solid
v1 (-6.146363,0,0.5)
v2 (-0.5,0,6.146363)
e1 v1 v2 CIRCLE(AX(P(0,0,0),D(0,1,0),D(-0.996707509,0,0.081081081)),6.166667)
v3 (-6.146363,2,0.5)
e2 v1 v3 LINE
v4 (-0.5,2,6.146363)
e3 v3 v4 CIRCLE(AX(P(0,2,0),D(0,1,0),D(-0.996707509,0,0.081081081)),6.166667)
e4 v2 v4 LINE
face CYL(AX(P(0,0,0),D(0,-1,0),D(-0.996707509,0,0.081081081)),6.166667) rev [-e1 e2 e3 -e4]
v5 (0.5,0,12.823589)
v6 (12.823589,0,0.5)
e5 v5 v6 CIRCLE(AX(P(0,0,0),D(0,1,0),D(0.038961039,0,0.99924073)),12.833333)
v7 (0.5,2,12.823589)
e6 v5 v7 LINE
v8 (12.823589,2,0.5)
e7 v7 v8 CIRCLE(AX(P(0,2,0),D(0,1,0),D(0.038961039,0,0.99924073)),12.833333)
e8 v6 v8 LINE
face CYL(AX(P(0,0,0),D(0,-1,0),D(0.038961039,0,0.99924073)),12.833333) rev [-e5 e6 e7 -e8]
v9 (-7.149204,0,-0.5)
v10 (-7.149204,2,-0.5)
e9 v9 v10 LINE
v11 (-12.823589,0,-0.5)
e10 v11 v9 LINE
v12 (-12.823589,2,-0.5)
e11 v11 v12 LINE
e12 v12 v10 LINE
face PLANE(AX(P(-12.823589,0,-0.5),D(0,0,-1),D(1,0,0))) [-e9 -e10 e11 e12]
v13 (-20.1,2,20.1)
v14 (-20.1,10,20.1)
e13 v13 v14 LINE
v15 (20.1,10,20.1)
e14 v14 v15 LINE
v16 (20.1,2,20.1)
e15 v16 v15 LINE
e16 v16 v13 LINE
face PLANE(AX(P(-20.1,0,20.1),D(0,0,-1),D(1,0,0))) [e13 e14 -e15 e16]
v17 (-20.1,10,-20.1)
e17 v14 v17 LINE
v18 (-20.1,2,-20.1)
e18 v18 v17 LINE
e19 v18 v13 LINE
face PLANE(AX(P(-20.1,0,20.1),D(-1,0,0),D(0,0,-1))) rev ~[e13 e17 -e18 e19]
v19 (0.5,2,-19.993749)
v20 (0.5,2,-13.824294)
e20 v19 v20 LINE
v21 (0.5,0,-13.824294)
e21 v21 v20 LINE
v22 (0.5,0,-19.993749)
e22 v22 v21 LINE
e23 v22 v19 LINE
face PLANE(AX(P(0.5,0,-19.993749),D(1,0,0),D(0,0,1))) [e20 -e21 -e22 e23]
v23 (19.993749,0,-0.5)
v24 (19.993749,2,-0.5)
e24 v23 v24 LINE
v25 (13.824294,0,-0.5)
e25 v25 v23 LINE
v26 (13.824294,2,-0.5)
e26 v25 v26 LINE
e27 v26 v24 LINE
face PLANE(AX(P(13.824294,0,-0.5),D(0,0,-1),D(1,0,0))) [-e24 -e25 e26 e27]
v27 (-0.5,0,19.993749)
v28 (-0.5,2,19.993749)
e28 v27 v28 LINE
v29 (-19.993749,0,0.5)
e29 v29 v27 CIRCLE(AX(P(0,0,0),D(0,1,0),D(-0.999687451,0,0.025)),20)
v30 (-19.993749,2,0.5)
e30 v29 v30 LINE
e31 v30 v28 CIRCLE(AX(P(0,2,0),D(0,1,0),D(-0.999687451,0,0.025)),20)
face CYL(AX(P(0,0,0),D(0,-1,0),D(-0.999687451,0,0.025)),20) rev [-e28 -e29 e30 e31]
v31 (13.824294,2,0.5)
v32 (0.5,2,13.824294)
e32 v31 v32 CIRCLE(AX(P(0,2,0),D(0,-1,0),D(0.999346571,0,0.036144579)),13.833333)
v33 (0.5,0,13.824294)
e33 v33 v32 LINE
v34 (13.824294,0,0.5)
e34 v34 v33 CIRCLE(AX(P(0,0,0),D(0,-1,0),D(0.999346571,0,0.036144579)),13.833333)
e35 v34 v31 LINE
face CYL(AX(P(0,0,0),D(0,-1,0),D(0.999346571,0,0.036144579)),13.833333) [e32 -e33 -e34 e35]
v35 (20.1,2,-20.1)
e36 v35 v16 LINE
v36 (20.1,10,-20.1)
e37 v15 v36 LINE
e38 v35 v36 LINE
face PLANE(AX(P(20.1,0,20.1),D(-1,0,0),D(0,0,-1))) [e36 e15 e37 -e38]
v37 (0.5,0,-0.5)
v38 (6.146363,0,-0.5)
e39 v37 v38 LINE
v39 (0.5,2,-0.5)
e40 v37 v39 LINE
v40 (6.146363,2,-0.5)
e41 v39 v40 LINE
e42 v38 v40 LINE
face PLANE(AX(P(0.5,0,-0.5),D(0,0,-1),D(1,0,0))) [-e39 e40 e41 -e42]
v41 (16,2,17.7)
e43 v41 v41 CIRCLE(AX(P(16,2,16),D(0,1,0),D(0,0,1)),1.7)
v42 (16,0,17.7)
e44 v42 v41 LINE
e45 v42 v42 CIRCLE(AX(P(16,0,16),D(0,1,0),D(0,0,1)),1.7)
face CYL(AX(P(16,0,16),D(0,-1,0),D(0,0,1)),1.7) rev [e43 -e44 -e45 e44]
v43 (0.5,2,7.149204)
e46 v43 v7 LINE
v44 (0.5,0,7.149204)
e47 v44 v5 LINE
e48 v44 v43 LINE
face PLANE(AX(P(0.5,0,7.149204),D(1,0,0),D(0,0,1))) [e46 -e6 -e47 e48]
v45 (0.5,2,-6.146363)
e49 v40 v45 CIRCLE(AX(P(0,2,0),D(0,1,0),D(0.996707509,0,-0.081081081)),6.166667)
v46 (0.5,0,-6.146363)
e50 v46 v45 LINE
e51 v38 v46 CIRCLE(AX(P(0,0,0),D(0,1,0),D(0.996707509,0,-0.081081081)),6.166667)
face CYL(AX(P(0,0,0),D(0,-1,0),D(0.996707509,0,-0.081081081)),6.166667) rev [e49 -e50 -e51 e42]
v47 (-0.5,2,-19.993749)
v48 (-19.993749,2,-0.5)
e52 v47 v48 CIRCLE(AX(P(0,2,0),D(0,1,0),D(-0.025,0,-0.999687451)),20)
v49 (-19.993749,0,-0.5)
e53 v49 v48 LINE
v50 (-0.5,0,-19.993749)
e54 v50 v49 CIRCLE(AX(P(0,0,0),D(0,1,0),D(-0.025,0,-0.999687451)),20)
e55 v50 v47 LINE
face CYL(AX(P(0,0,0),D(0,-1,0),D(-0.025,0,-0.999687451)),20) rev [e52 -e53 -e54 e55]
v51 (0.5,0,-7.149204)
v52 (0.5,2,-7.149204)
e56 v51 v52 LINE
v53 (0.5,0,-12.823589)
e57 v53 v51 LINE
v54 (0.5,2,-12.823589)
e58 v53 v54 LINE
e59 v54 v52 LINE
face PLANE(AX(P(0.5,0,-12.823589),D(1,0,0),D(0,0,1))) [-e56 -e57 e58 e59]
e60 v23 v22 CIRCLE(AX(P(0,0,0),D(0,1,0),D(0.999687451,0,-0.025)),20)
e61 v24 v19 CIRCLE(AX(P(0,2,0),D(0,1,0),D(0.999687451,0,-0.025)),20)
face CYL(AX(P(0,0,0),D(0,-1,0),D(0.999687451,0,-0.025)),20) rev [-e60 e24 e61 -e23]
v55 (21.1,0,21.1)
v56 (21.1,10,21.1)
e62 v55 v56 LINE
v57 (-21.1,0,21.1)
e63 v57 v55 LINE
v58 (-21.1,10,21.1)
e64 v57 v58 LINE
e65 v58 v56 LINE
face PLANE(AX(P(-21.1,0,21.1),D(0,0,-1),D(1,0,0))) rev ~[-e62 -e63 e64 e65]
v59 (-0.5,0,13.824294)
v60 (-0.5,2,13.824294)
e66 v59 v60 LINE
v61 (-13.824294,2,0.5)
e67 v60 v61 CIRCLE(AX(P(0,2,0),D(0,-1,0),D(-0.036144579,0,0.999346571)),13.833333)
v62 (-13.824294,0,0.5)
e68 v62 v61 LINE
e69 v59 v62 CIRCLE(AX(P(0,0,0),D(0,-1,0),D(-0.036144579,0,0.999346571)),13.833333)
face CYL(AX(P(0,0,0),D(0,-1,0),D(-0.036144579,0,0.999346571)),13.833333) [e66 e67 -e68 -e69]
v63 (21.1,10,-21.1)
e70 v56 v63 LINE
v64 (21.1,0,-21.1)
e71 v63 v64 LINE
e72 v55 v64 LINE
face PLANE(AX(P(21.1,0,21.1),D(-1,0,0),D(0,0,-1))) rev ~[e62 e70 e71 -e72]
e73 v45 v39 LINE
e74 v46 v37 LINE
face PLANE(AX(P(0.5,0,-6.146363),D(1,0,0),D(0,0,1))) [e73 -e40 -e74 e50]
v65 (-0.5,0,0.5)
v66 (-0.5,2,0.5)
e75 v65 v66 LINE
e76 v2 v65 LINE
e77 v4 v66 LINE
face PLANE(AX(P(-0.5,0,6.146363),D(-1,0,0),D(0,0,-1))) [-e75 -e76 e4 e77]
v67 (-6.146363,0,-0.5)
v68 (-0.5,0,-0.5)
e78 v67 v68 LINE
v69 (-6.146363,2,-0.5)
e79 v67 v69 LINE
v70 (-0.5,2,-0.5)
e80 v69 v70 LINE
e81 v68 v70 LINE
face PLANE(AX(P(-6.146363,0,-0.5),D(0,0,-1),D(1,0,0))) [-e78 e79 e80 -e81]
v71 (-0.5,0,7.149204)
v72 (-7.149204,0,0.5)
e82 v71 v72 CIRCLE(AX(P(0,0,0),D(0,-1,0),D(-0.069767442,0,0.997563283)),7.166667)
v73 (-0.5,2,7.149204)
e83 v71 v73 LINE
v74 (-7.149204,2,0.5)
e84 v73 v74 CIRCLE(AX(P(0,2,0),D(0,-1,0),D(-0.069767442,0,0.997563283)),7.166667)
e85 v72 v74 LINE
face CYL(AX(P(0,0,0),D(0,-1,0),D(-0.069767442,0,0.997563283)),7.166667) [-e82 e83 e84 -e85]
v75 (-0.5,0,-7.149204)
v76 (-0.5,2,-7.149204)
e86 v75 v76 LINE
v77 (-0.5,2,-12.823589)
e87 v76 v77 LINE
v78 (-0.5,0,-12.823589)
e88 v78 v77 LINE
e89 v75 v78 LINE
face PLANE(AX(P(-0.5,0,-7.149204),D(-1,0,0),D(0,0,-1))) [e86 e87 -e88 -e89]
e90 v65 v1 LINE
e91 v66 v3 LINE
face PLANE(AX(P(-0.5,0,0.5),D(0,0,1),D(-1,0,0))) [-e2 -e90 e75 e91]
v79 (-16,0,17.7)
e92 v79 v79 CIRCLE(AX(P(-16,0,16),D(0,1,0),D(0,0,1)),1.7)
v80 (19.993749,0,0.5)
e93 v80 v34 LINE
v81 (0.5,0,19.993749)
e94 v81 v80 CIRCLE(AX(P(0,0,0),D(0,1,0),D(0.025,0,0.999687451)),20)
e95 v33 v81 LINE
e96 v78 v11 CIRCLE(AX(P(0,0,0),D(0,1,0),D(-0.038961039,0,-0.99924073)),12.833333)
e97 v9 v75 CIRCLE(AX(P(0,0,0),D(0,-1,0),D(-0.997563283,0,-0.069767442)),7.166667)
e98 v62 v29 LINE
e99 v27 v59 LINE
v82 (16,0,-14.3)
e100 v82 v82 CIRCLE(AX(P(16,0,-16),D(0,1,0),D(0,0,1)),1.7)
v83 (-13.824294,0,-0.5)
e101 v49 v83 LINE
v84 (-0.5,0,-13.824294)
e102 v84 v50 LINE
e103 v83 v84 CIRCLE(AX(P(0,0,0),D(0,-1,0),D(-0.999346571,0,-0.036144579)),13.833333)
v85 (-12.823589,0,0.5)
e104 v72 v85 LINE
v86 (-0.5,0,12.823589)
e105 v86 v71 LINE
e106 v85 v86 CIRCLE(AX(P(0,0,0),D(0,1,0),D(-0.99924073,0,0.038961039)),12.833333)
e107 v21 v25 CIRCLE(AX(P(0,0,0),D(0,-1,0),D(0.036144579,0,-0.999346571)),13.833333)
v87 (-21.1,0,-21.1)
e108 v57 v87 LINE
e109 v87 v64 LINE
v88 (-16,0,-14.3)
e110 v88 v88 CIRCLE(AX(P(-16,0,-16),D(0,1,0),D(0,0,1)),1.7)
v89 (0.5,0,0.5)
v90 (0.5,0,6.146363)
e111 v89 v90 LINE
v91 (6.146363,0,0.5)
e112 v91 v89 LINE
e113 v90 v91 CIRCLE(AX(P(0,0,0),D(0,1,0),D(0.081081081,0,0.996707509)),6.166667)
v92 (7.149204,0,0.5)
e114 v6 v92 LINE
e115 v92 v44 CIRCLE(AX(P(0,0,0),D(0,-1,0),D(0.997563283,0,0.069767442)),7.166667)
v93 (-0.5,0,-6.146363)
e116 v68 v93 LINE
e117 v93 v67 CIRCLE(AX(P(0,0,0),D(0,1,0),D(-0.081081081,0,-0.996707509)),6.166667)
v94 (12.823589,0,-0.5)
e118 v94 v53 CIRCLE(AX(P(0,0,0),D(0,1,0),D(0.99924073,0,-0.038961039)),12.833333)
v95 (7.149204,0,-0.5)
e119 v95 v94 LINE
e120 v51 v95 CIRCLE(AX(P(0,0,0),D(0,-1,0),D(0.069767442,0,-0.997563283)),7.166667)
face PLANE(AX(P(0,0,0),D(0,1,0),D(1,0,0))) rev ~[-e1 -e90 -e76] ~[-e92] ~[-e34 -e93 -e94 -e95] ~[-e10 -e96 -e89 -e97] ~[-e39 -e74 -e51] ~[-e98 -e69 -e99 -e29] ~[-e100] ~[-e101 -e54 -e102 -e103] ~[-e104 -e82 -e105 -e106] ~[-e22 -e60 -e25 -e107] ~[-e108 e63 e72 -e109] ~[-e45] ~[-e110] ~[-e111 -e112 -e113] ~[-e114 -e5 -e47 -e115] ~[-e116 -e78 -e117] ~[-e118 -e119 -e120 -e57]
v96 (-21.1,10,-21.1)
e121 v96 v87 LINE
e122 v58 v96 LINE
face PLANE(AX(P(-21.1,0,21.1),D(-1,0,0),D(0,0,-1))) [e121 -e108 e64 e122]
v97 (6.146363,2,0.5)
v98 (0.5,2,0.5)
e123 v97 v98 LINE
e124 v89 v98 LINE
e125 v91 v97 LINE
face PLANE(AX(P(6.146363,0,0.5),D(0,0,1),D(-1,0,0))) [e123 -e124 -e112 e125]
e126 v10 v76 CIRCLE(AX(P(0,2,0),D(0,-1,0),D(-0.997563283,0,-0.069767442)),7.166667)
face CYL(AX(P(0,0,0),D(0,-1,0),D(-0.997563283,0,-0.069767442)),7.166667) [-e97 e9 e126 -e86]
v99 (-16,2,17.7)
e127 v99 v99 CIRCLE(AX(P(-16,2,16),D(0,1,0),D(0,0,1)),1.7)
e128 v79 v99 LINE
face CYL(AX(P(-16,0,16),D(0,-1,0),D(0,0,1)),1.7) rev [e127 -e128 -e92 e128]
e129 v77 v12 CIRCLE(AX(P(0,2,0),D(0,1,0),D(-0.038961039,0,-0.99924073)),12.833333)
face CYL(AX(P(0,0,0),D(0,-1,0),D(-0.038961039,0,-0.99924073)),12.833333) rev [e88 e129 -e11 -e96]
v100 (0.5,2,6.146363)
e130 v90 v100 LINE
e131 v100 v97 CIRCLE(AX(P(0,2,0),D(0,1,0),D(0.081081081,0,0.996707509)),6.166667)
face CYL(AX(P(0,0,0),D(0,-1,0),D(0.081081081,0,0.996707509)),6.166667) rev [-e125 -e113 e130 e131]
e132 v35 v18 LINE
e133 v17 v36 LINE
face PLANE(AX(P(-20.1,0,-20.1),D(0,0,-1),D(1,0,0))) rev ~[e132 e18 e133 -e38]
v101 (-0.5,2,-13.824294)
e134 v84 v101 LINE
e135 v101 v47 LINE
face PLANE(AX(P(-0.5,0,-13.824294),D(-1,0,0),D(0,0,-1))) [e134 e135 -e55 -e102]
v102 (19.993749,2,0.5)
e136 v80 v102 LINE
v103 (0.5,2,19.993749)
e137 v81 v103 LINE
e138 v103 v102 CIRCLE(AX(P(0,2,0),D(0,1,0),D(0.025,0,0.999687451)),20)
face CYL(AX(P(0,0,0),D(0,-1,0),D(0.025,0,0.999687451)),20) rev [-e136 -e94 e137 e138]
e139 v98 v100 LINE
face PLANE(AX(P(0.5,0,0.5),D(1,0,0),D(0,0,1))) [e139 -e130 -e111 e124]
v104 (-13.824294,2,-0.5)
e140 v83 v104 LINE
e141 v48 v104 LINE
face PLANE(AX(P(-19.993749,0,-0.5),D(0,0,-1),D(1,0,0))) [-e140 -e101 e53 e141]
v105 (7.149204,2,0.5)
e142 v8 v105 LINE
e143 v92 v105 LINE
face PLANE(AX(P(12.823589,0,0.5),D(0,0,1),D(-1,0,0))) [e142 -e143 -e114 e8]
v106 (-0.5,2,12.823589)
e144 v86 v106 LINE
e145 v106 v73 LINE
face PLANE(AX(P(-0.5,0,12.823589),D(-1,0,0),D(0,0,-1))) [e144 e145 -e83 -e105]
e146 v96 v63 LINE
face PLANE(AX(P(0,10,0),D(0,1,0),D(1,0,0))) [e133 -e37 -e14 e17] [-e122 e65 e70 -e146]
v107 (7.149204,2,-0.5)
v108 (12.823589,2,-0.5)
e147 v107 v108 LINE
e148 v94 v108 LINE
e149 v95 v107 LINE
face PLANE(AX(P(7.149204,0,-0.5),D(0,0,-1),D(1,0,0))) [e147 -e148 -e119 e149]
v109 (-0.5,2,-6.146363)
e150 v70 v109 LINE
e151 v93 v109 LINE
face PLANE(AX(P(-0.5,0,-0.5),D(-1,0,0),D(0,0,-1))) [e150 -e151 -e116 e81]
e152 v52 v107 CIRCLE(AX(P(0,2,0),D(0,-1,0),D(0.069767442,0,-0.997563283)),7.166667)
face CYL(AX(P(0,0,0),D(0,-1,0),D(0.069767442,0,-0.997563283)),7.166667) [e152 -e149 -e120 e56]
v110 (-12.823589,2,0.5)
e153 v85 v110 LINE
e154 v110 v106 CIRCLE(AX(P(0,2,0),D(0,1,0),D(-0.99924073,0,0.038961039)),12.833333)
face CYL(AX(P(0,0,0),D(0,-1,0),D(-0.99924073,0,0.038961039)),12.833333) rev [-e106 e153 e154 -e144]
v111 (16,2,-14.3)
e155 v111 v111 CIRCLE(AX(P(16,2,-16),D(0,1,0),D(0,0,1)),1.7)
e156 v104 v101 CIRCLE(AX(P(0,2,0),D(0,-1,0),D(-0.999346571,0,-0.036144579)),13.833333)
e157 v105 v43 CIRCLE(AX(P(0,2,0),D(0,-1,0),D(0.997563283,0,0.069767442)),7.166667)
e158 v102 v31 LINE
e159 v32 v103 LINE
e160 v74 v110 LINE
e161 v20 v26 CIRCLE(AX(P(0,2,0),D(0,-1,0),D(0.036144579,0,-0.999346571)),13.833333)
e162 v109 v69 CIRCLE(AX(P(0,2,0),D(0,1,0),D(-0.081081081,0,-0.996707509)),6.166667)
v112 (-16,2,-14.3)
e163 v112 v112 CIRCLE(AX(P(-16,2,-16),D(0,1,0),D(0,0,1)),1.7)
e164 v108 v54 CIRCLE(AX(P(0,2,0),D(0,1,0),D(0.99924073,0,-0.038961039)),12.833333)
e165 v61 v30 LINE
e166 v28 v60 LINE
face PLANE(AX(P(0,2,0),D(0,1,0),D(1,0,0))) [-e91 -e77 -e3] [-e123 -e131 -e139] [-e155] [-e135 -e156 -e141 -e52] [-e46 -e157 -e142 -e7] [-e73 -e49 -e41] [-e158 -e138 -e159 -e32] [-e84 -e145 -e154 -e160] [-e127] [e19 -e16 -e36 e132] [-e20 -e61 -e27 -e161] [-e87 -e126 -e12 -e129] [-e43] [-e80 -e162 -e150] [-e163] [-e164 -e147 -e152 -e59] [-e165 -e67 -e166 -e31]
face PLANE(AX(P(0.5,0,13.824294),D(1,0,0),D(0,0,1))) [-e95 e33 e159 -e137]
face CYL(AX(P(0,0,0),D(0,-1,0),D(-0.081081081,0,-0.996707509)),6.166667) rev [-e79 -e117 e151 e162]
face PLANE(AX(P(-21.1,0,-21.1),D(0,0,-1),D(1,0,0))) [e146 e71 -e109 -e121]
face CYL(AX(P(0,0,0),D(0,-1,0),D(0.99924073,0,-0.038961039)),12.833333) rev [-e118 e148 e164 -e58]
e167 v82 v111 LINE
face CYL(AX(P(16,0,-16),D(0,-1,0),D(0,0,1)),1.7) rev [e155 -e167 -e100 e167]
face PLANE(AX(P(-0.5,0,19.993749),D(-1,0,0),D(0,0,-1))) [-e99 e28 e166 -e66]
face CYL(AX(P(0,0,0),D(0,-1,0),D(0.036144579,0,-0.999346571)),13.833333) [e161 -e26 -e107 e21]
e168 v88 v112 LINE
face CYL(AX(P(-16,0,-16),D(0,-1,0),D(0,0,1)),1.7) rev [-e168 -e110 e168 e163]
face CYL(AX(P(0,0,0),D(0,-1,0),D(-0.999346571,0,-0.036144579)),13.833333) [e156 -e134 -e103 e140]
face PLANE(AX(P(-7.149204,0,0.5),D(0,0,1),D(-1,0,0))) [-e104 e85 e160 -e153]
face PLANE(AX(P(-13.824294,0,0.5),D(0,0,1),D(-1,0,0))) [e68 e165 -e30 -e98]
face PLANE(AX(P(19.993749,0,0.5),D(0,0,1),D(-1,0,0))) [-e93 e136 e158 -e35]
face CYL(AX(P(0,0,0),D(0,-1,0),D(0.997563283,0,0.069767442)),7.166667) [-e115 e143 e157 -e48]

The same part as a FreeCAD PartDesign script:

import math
import FreeCAD as App
import Part
import Sketcher

V = App.Vector
Q = App.Units.Quantity


def add_polygon(sketch, points):
    """Adds a closed chain of lines whose ends are joined by coincident constraints."""
    first, n = sketch.GeometryCount, len(points)
    for a, b in zip(points, points[1:] + points[:1]):
        sketch.addGeometry(Part.LineSegment(App.Vector(*a, 0), App.Vector(*b, 0)), False)
    for i in range(n):
        sketch.addConstraint(Sketcher.Constraint("Coincident", first + i, 2, first + (i + 1) % n, 1))

doc = App.newDocument("Part")
params = doc.addObject("Spreadsheet::Sheet", "Params")
for row, (alias, value) in enumerate([
    ("sketch1_diameter", "3.4 mm"),
    ("sketch1_width", "42.2 mm"),
    ("pad1_length", "2 mm"),
    ("sketch2_width", "42.2 mm"),
    ("sketch2_width2", "40.2 mm"),
    ("pad2_length", "10 mm"),
    ("sketch3_radius", "20 mm"),
    ("pocket1_length", "2 mm"),
], start=1):
    params.set(f"A{row}", alias)
    params.set(f"B{row}", "=" + value)
    params.setAlias(f"B{row}", alias)

body = doc.addObject("PartDesign::Body", "Body")

# Sketch on XZ plane
sketch1 = body.newObject("Sketcher::SketchObject", "Sketch")
sketch1.AttachmentSupport = (doc.getObject("XZ_Plane"), [""])
sketch1.MapMode = "FlatFace"
add_polygon(sketch1, [(-21.1, -21.1), (-21.1, 21.1), (21.1, 21.1), (21.1, -21.1)])  # lines 0-3
sketch1.addGeometry(Part.Circle(V(-16, 16, 0), V(0, 0, 1), 1.7), False)  # 4
sketch1.addGeometry(Part.Circle(V(16, 16, 0), V(0, 0, 1), 1.7), False)  # 5
sketch1.addGeometry(Part.Circle(V(-16, -16, 0), V(0, 0, 1), 1.7), False)  # 6
sketch1.addGeometry(Part.Circle(V(16, -16, 0), V(0, 0, 1), 1.7), False)  # 7
sketch1.addConstraint([
    Sketcher.Constraint("Vertical", 0),
    Sketcher.Constraint("Horizontal", 1),
    Sketcher.Constraint("Vertical", 2),
    Sketcher.Constraint("Horizontal", 3),
    Sketcher.Constraint("Equal", 4, 5),
    Sketcher.Constraint("Equal", 5, 6),
    Sketcher.Constraint("Equal", 6, 7),
    Sketcher.Constraint("Symmetric", 5, 3, 6, 3, -1, 1),
    Sketcher.Constraint("Symmetric", 4, 3, 7, 3, -1, 1),
    Sketcher.Constraint("Symmetric", 0, 2, 2, 2, -1, 1),
    Sketcher.Constraint("Symmetric", 4, 3, 5, 3, -2),
    Sketcher.Constraint("Equal", 3, 0),
    Sketcher.Constraint("Diameter", 4, Q("3.4 mm")),
    Sketcher.Constraint("DistanceX", 1, 1, 1, 2, Q("42.2 mm")),
    Sketcher.Constraint("DistanceX", 4, 3, -1, 1, Q("16 mm")),
    Sketcher.Constraint("DistanceY", -1, 1, 4, 3, Q("16 mm")),
])
sketch1.setExpression("Constraints[16]", "Params.sketch1_diameter")
sketch1.setExpression("Constraints[17]", "Params.sketch1_width")
pad1 = body.newObject("PartDesign::Pad", "Pad")
pad1.Profile = sketch1
pad1.setExpression("Length", "Params.pad1_length")
pad1.Reversed = True

# Sketch on XZ plane
sketch2 = body.newObject("Sketcher::SketchObject", "Sketch001")
sketch2.AttachmentSupport = (doc.getObject("XZ_Plane"), [""])
sketch2.MapMode = "FlatFace"
add_polygon(sketch2, [(-21, -21), (-21, 21), (21, 21), (21, -21)])  # lines 0-3
add_polygon(sketch2, [(20, 20), (-20, 20), (-20, -20), (20, -20)])  # lines 4-7
sketch2.addConstraint([
    Sketcher.Constraint("Vertical", 0),
    Sketcher.Constraint("Horizontal", 1),
    Sketcher.Constraint("Vertical", 2),
    Sketcher.Constraint("Horizontal", 3),
    Sketcher.Constraint("Horizontal", 4),
    Sketcher.Constraint("Vertical", 5),
    Sketcher.Constraint("Horizontal", 6),
    Sketcher.Constraint("Vertical", 7),
    Sketcher.Constraint("Symmetric", 0, 2, 2, 2, -1, 1),
    Sketcher.Constraint("Symmetric", 4, 2, 6, 2, -1, 1),
    Sketcher.Constraint("Equal", 3, 0),
    Sketcher.Constraint("Equal", 6, 5),
    Sketcher.Constraint("DistanceX", 1, 1, 1, 2, Q("42.2 mm")),
    Sketcher.Constraint("DistanceX", 4, 2, 4, 1, Q("40.2 mm")),
])
sketch2.setExpression("Constraints[20]", "Params.sketch2_width")
sketch2.setExpression("Constraints[21]", "Params.sketch2_width2")
pad2 = body.newObject("PartDesign::Pad", "Pad001")
pad2.Profile = sketch2
pad2.setExpression("Length", "Params.pad2_length")
pad2.Reversed = True

# Sketch on XZ plane
sketch3 = body.newObject("Sketcher::SketchObject", "Sketch002")
sketch3.AttachmentSupport = (doc.getObject("XZ_Plane"), [""])
sketch3.MapMode = "FlatFace"
sketch3.addGeometry([
    Part.ArcOfCircle(Part.Circle(V(0, 0, 0), V(0, 0, 1), 13), math.radians(-88), math.radians(-2)),  # 0
    Part.LineSegment(V(0, -13, 0), V(0, -7, 0)),  # 1
    Part.ArcOfCircle(Part.Circle(V(0, 0, 0), V(0, 0, 1), 7), math.radians(-86), math.radians(-4)),  # 2
    Part.LineSegment(V(7, 0, 0), V(13, 0, 0)),  # 3
    Part.ArcOfCircle(Part.Circle(V(0, 0, 0), V(0, 0, 1), 6), math.radians(-85), math.radians(-5)),  # 4
    Part.LineSegment(V(0, -6, 0), V(0, 0, 0)),  # 5
    Part.LineSegment(V(0, 0, 0), V(6, 0, 0)),  # 6
    Part.LineSegment(V(0, -20, 0), V(0, -14, 0)),  # 7
    Part.ArcOfCircle(Part.Circle(V(0, 0, 0), V(0, 0, 1), 14), math.radians(-88), math.radians(-2)),  # 8
    Part.LineSegment(V(14, 0, 0), V(20, 0, 0)),  # 9
    Part.ArcOfCircle(Part.Circle(V(0, 0, 0), V(0, 0, 1), 20), math.radians(-89), math.radians(-1)),  # 10
], False)
sketch3.addConstraint([
    Sketcher.Constraint("Coincident", 0, 1, 1, 1),
    Sketcher.Constraint("Coincident", 1, 2, 2, 1),
    Sketcher.Constraint("Coincident", 2, 2, 3, 1),
    Sketcher.Constraint("Coincident", 3, 2, 0, 2),
    Sketcher.Constraint("Coincident", 4, 1, 5, 1),
    Sketcher.Constraint("Coincident", 5, 2, 6, 1),
    Sketcher.Constraint("Coincident", 6, 2, 4, 2),
    Sketcher.Constraint("Coincident", 7, 2, 8, 1),
    Sketcher.Constraint("Coincident", 8, 2, 9, 1),
    Sketcher.Constraint("Coincident", 9, 2, 10, 2),
    Sketcher.Constraint("Coincident", 10, 1, 7, 1),
    Sketcher.Constraint("Vertical", 1),
    Sketcher.Constraint("Horizontal", 3),
    Sketcher.Constraint("Vertical", 5),
    Sketcher.Constraint("Horizontal", 6),
    Sketcher.Constraint("Vertical", 7),
    Sketcher.Constraint("Horizontal", 9),
    Sketcher.Constraint("Coincident", 0, 3, -1, 1),
    Sketcher.Constraint("Coincident", 2, 3, -1, 1),
    Sketcher.Constraint("Coincident", 4, 3, -1, 1),
    Sketcher.Constraint("Coincident", 8, 3, -1, 1),
    Sketcher.Constraint("Coincident", 10, 3, -1, 1),
    Sketcher.Constraint("Horizontal", 3, 2, 5, 2),
    Sketcher.Constraint("Horizontal", 6, 2, 8, 2),
    Sketcher.Constraint("Vertical", 1, 2, 4, 1),
    Sketcher.Constraint("Vertical", 5, 2, 7, 2),
    Sketcher.Constraint("Equal", 3, 1),
    Sketcher.Constraint("Radius", 10, Q("20 mm")),
    Sketcher.Constraint("DistanceX", -1, 1, 0, 1, Q("0.5 mm")),
    Sketcher.Constraint("Radius", 0, Q("12.833333 mm")),
    Sketcher.Constraint("Radius", 2, Q("7.166667 mm")),
    Sketcher.Constraint("Radius", 4, Q("6.166667 mm")),
    Sketcher.Constraint("Radius", 8, Q("13.833333 mm")),
])
sketch3.setExpression("Constraints[27]", "Params.sketch3_radius")
pocket1 = body.newObject("PartDesign::Pocket", "Pocket")
pocket1.Profile = sketch3
pocket1.setExpression("Length", "Params.pocket1_length")
doc.recompute()

polarpattern = body.newObject("PartDesign::PolarPattern", "PolarPattern")
polarpattern.Originals = [pocket1]
polarpattern.Axis = (doc.getObject("Y_Axis"), [""])
polarpattern.Angle = 360
polarpattern.Occurrences = 4
body.Tip = polarpattern

doc.recompute()
